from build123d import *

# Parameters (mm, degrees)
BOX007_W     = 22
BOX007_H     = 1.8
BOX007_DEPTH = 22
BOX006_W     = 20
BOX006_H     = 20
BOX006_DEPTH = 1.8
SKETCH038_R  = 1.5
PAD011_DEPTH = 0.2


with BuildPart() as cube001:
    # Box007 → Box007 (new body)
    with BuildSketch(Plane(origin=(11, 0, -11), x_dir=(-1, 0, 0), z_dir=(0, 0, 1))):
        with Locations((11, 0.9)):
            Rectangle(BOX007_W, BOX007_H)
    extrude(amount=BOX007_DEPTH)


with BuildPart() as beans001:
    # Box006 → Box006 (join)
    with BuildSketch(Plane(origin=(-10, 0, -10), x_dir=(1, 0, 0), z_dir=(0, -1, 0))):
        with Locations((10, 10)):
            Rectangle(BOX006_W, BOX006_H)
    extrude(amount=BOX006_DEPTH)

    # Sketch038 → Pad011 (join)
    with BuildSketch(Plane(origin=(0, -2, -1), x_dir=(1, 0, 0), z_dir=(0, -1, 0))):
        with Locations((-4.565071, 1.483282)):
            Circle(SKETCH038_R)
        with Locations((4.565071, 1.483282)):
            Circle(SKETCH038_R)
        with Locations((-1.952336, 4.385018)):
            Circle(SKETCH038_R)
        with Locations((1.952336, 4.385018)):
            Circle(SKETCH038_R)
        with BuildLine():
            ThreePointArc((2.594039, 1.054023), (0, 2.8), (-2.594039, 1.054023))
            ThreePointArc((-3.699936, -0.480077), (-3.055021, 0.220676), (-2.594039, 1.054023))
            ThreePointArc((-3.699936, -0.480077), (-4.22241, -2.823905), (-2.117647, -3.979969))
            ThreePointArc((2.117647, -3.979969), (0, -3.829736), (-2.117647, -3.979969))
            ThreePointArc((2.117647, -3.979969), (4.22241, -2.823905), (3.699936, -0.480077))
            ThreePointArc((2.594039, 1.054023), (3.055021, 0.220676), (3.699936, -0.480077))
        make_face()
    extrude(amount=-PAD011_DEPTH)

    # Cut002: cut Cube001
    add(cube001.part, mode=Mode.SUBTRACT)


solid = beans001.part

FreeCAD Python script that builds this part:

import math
import FreeCAD as App
import Part
import Sketcher
from FreeCAD import Vector

doc = App.newDocument("Part")
body = doc.addObject("PartDesign::Body", "Body")

# Sketch on XY plane
sketch1 = doc.addObject("Sketcher::SketchObject", "Sketch")
body.addObject(sketch1)
sketch1.AttachmentSupport = (doc.XY_Plane, [""])
sketch1.MapMode = "FlatFace"
sketch1.AttachmentOffset = App.Placement(Vector(0, 0, -11), App.Rotation())
sketch1.addGeometry([
    Part.LineSegment(Vector(11, -1.8, 0), Vector(11, 0, 0)),
    Part.LineSegment(Vector(11, 0, 0), Vector(-11, 0, 0)),
    Part.LineSegment(Vector(-11, 0, 0), Vector(-11, -1.8, 0)),
    Part.LineSegment(Vector(-11, -1.8, 0), Vector(11, -1.8, 0)),
], False)
sketch1.addConstraint([
    Sketcher.Constraint("Coincident", 0, 2, 1, 1),
    Sketcher.Constraint("Coincident", 1, 2, 2, 1),
    Sketcher.Constraint("Coincident", 2, 2, 3, 1),
    Sketcher.Constraint("Coincident", 3, 2, 0, 1),
    Sketcher.Constraint("Vertical", 0),
    Sketcher.Constraint("Horizontal", 1),
    Sketcher.Constraint("Vertical", 2),
    Sketcher.Constraint("Horizontal", 3),
    Sketcher.Constraint("Symmetric", 0, 2, 1, 2, -1, 1),
    Sketcher.Constraint("DistanceX", 1, 2, 1, 1, 22.0),
    Sketcher.Constraint("DistanceY", 0, 1, 0, 2, 1.8),
])
pad1 = doc.addObject("PartDesign::Pad", "Pad")
body.addObject(pad1)
pad1.Profile = sketch1
pad1.Length = 22
body2 = doc.addObject("PartDesign::Body", "Body001")
body2.AllowCompound = True

# Sketch on XZ plane
sketch2 = doc.addObject("Sketcher::SketchObject", "Sketch001")
body2.addObject(sketch2)
sketch2.AttachmentSupport = (doc.getObject("XZ_Plane001"), [""])
sketch2.MapMode = "FlatFace"
sketch2.addGeometry([
    Part.LineSegment(Vector(-10, 10, 0), Vector(-10, -10, 0)),
    Part.LineSegment(Vector(-10, -10, 0), Vector(10, -10, 0)),
    Part.LineSegment(Vector(10, -10, 0), Vector(10, 10, 0)),
    Part.LineSegment(Vector(10, 10, 0), Vector(-10, 10, 0)),
], False)
sketch2.addConstraint([
    Sketcher.Constraint("Coincident", 0, 2, 1, 1),
    Sketcher.Constraint("Coincident", 1, 2, 2, 1),
    Sketcher.Constraint("Coincident", 2, 2, 3, 1),
    Sketcher.Constraint("Coincident", 3, 2, 0, 1),
    Sketcher.Constraint("Vertical", 0),
    Sketcher.Constraint("Horizontal", 1),
    Sketcher.Constraint("Vertical", 2),
    Sketcher.Constraint("Horizontal", 3),
    Sketcher.Constraint("Symmetric", 0, 2, 2, 2, -1, 1),
    Sketcher.Constraint("Equal", 3, 0),
    Sketcher.Constraint("DistanceX", 1, 1, 1, 2, 20.0),
])
pad2 = doc.addObject("PartDesign::Pad", "Pad001")
body2.addObject(pad2)
pad2.Profile = sketch2
pad2.Length = 1.8

# Sketch on XZ plane
sketch3 = doc.addObject("Sketcher::SketchObject", "Sketch002")
body2.addObject(sketch3)
sketch3.AttachmentSupport = (doc.getObject("XZ_Plane001"), [""])
sketch3.MapMode = "FlatFace"
sketch3.AttachmentOffset = App.Placement(Vector(0, 0, 2), App.Rotation())
sketch3.addGeometry([
    Part.Circle(Vector(-4.6, 0.5, 0), Vector(0, 0, 1), 1.5),  # 0
    Part.Circle(Vector(4.6, 0.5, 0), Vector(0, 0, 1), 1.5),  # 1
    Part.Circle(Vector(-2, 3.4, 0), Vector(0, 0, 1), 1.5),  # 2
    Part.Circle(Vector(2, 3.4, 0), Vector(0, 0, 1), 1.5),  # 3
    Part.ArcOfCircle(Part.Circle(Vector(0, -1, 0), Vector(0, 0, 1), 2.8), math.radians(22), math.radians(158)),  # 4
    Part.ArcOfCircle(Part.Circle(Vector(-6.3, 1.6, 0), Vector(0, 0, 1), 4), math.radians(-49), math.radians(-22)),  # 5
    Part.ArcOfCircle(Part.Circle(Vector(-2.4, -3, 0), Vector(0, 0, 1), 2), math.radians(131), math.radians(278)),  # 6
    Part.ArcOfCircle(Part.Circle(Vector(0, -19.8, 0), Vector(0, 0, 1), 15), math.radians(81.88), math.radians(98.12)),  # 7
    Part.ArcOfCircle(Part.Circle(Vector(2.4, -3, 0), Vector(0, 0, 1), 2), math.radians(-98), math.radians(49)),  # 8
    Part.ArcOfCircle(Part.Circle(Vector(6.3, 1.6, 0), Vector(0, 0, 1), 4), math.radians(-158), math.radians(-131)),  # 9
], False)
sketch3.addConstraint([
    Sketcher.Constraint("Tangent", 4, 2, 5, 2),
    Sketcher.Constraint("Tangent", 5, 1, 6, 1),
    Sketcher.Constraint("Tangent", 6, 2, 7, 2),
    Sketcher.Constraint("Tangent", 7, 1, 8, 1),
    Sketcher.Constraint("Tangent", 8, 2, 9, 2),
    Sketcher.Constraint("Tangent", 9, 1, 4, 1),
    Sketcher.Constraint("Equal", 0, 1),
    Sketcher.Constraint("Equal", 1, 2),
    Sketcher.Constraint("Equal", 2, 3),
    Sketcher.Constraint("Equal", 6, 8),
    Sketcher.Constraint("Equal", 5, 9),
    Sketcher.Constraint("Symmetric", 0, 3, 1, 3, -2),
    Sketcher.Constraint("Symmetric", 2, 3, 3, 3, -2),
    Sketcher.Constraint("Symmetric", 6, 3, 8, 3, -2),
    Sketcher.Constraint("PointOnObject", 4, 3, -2),
    Sketcher.Constraint("Diameter", 0, 3.0),
    Sketcher.Constraint("Radius", 6, 2.0),
    Sketcher.Constraint("Radius", 4, 2.800001),
    Sketcher.Constraint("DistanceY", 4, 3, -1, 1, 1.000001),
    Sketcher.Constraint("DistanceY", 6, 3, -1, 1, 3.0),
    Sketcher.Constraint("DistanceX", 6, 3, -1, 1, 2.399999),
    Sketcher.Constraint("Radius", 5, 3.99999),
    Sketcher.Constraint("Radius", 7, 15.000029),
    Sketcher.Constraint("DistanceX", 0, 3, -1, 1, 4.565071),
    Sketcher.Constraint("DistanceY", -1, 1, 2, 3, 3.385018),
    Sketcher.Constraint("DistanceY", 0, 3, 5, 3, 1.076481),
    Sketcher.Constraint("DistanceX", 2, 3, -1, 1, 1.952336),
])
pad3 = doc.addObject("PartDesign::Pad", "Pad002")
body2.addObject(pad3)
pad3.Profile = sketch3
pad3.Length = 0.2
pad3.Reversed = True
doc.recompute()

boolean = doc.addObject("PartDesign::Boolean", "Boolean")
body2.addObject(boolean)
boolean.Type = "Cut"
boolean.addObjects([body])

doc.recompute()
